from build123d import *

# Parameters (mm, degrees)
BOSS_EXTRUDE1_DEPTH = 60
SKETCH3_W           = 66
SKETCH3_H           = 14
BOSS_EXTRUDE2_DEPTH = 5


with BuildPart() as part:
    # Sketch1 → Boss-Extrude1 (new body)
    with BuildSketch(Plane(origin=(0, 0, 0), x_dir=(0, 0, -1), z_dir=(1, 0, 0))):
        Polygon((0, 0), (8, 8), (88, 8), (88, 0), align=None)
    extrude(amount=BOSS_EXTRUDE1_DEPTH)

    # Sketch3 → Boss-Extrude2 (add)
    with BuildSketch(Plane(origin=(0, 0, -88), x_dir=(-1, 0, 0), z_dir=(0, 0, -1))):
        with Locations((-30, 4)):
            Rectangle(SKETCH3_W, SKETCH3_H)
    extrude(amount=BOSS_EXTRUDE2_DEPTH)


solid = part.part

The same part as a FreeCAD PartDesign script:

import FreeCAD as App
import Part
import Sketcher
from FreeCAD import Vector
Q = App.Units.Quantity


def add_polygon(sketch, points):
    """Adds a closed chain of lines whose ends are joined by coincident constraints."""
    first, n = sketch.GeometryCount, len(points)
    for a, b in zip(points, points[1:] + points[:1]):
        sketch.addGeometry(Part.LineSegment(App.Vector(*a, 0), App.Vector(*b, 0)), False)
    for i in range(n):
        sketch.addConstraint(Sketcher.Constraint("Coincident", first + i, 2, first + (i + 1) % n, 1))

doc = App.newDocument("Part")
body = doc.addObject("PartDesign::Body", "Body")

# Sketch on YZ plane
sketch1 = doc.addObject("Sketcher::SketchObject", "Sketch")
body.addObject(sketch1)
sketch1.AttachmentSupport = (doc.YZ_Plane, [""])
sketch1.MapMode = "FlatFace"
add_polygon(sketch1, [(8, -8), (0, 0), (0, -88), (8, -88)])  # lines 0-3
sketch1.addConstraint(Sketcher.Constraint("Vertical", 1))
sketch1.addConstraint(Sketcher.Constraint("Horizontal", 2))
sketch1.addConstraint(Sketcher.Constraint("Vertical", 3))
sketch1.addConstraint(Sketcher.Constraint("Coincident", 0, 2, -1, 1))
sketch1.addConstraint(Sketcher.Constraint("DistanceX", 2, 1, 2, 2, Q("8 mm")))
sketch1.addConstraint(Sketcher.Constraint("DistanceY", 1, 2, 1, 1, Q("88 mm")))
sketch1.addConstraint(Sketcher.Constraint("DistanceY", 3, 1, 3, 2, Q("80 mm")))
pad1 = doc.addObject("PartDesign::Pad", "Pad")
body.addObject(pad1)
pad1.Profile = sketch1
pad1.Length = 60

# Sketch on XY plane
sketch2 = doc.addObject("Sketcher::SketchObject", "Sketch001")
body.addObject(sketch2)
sketch2.AttachmentSupport = (doc.XY_Plane, [""])
sketch2.MapMode = "FlatFace"
sketch2.AttachmentOffset = App.Placement(Vector(0, 0, -88), App.Rotation())
add_polygon(sketch2, [(63, 11), (63, -3), (-3, -3), (-3, 11)])  # lines 0-3
sketch2.addConstraint(Sketcher.Constraint("Vertical", 0))
sketch2.addConstraint(Sketcher.Constraint("Horizontal", 1))
sketch2.addConstraint(Sketcher.Constraint("Vertical", 2))
sketch2.addConstraint(Sketcher.Constraint("Horizontal", 3))
sketch2.addConstraint(Sketcher.Constraint("DistanceX", 1, 2, 1, 1, Q("66 mm")))
sketch2.addConstraint(Sketcher.Constraint("DistanceY", 0, 2, 0, 1, Q("14 mm")))
sketch2.addConstraint(Sketcher.Constraint("DistanceX", -1, 1, 0, 2, Q("63 mm")))
sketch2.addConstraint(Sketcher.Constraint("DistanceY", 0, 2, -1, 1, Q("3 mm")))
pad2 = doc.addObject("PartDesign::Pad", "Pad001")
body.addObject(pad2)
pad2.Profile = sketch2
pad2.Length = 5
pad2.Reversed = True

doc.recompute()
